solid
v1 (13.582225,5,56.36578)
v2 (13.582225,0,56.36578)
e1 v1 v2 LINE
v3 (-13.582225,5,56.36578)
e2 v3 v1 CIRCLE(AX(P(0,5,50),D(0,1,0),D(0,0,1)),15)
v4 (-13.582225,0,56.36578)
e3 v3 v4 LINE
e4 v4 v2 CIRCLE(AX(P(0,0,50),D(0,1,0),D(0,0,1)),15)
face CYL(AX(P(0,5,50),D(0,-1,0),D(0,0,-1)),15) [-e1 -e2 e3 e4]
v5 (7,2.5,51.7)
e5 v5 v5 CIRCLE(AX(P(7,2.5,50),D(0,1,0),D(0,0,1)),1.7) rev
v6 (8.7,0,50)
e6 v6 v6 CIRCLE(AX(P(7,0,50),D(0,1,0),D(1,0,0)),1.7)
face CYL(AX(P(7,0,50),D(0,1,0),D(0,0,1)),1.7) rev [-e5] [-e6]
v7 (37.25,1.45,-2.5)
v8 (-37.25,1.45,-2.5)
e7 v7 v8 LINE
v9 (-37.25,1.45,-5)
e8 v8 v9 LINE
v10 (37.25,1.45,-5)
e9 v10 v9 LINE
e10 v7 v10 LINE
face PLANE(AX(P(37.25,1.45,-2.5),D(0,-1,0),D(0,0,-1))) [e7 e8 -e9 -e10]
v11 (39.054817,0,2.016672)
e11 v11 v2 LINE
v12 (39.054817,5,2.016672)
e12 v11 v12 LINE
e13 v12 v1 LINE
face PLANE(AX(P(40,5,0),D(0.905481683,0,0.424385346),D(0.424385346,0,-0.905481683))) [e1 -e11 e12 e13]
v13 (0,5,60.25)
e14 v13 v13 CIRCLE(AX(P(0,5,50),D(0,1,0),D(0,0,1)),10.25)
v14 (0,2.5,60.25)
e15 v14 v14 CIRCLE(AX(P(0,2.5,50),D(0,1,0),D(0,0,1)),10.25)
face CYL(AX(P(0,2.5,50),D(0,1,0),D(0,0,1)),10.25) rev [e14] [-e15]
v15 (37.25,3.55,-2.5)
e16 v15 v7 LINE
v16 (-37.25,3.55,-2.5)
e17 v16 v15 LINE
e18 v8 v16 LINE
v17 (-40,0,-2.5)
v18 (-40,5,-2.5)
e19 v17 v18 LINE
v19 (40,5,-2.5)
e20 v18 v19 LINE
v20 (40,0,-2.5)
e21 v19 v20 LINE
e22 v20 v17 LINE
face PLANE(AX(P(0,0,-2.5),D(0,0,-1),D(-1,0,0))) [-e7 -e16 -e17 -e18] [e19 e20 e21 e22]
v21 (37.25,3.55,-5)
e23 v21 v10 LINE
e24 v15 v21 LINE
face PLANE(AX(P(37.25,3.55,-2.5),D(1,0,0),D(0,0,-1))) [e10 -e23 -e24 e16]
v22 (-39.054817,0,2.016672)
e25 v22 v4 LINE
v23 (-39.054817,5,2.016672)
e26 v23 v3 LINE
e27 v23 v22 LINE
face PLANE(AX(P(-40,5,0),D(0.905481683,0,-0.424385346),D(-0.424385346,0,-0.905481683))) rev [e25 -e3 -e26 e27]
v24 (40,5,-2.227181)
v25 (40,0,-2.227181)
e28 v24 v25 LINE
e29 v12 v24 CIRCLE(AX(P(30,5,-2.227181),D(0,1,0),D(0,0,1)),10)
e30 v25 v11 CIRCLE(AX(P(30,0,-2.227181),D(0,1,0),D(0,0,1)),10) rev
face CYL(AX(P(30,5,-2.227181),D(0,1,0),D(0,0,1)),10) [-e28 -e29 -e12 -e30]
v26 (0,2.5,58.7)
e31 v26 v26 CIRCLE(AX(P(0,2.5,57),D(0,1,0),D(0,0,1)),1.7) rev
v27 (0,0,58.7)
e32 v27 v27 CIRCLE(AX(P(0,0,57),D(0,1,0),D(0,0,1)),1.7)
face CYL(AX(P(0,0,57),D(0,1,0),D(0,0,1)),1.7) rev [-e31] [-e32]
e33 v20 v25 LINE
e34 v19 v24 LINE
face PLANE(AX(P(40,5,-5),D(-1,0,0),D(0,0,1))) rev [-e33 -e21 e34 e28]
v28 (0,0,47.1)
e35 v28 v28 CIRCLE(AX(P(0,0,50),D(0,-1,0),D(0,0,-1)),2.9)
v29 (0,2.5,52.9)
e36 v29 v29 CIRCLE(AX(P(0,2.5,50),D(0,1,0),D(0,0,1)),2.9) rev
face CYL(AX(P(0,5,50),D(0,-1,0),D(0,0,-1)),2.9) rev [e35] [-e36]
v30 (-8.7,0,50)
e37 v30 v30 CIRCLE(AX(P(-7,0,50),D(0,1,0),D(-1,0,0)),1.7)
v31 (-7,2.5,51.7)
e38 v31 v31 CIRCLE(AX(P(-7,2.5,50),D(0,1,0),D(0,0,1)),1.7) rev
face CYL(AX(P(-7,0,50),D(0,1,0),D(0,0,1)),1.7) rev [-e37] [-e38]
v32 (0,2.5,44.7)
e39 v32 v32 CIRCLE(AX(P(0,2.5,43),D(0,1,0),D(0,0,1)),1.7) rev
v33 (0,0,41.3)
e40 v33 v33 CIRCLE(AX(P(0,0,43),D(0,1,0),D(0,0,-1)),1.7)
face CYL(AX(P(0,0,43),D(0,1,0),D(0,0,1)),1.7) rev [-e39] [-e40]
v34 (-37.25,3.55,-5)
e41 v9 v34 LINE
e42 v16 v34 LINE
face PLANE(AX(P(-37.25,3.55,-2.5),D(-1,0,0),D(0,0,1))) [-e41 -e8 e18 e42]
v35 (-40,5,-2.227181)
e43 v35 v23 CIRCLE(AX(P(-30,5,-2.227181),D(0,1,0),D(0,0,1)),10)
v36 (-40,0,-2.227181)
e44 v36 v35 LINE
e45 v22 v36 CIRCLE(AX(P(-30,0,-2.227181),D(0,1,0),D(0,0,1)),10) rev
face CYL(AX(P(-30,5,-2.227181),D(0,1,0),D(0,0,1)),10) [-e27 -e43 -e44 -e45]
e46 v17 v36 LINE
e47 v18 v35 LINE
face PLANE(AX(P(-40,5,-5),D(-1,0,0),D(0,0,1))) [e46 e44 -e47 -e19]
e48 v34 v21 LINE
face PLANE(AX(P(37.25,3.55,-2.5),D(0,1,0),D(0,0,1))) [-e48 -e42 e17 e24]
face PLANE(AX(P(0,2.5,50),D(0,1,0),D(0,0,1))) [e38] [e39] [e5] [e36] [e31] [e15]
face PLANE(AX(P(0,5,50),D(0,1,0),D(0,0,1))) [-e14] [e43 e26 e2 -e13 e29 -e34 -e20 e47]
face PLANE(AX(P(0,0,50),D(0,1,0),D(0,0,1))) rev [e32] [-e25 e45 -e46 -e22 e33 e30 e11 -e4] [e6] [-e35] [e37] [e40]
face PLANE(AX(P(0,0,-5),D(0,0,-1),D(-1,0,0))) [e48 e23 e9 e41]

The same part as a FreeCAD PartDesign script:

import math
import FreeCAD as App
import Part
import Sketcher
Q = App.Units.Quantity


def edges_at(feature, points):
    """Names of the edges that pass closest to the given points."""
    edges = feature.Shape.Edges
    near = lambda p: min(range(len(edges)), key=lambda i: edges[i].distToShape(Part.Vertex(*p))[0])
    return sorted({f"Edge{near(p) + 1}" for p in points})


def add_polygon(sketch, points):
    """Adds a closed chain of lines whose ends are joined by coincident constraints."""
    first, n = sketch.GeometryCount, len(points)
    for a, b in zip(points, points[1:] + points[:1]):
        sketch.addGeometry(Part.LineSegment(App.Vector(*a, 0), App.Vector(*b, 0)), False)
    for i in range(n):
        sketch.addConstraint(Sketcher.Constraint("Coincident", first + i, 2, first + (i + 1) % n, 1))

doc = App.newDocument("Part")
body = doc.addObject("PartDesign::Body", "Body")

sketch1 = body.newObject("Sketcher::SketchObject", "Sketch")
sketch1.AttachmentSupport = (doc.getObject("XZ_Plane"), [""])
sketch1.MapMode = "FlatFace"
sketch1.addGeometry([
    Part.LineSegment(App.Vector(40, 0, 0), App.Vector(-40, 0, 0)),
    Part.LineSegment(App.Vector(-40, 0, 0), App.Vector(-13.582225, 56.36578, 0)),
    Part.ArcOfCircle(Part.Circle(App.Vector(0, 50, 0), App.Vector(0, 0, 1), 15), math.radians(25.111764), math.radians(154.888236)),
    Part.LineSegment(App.Vector(13.582225, 56.36578, 0), App.Vector(40, 0, 0)),
], False)
sketch1.addConstraint([
    Sketcher.Constraint("Coincident", 0, 2, 1, 1),
    Sketcher.Constraint("Tangent", 1, 2, 2, 2),
    Sketcher.Constraint("Tangent", 2, 1, 3, 1),
    Sketcher.Constraint("Coincident", 3, 2, 0, 1),
    Sketcher.Constraint("Horizontal", 0),
    Sketcher.Constraint("Symmetric", 0, 2, 3, 2, -1, 1),
    Sketcher.Constraint("PointOnObject", 2, 3, -2),
    Sketcher.Constraint("Radius", 2, Q("15 mm")),
    Sketcher.Constraint("DistanceX", 0, 2, 0, 1, Q("80 mm")),
    Sketcher.Constraint("DistanceY", -1, 1, 2, 3, Q("50 mm")),
])
pad1 = body.newObject("PartDesign::Pad", "Pad")
pad1.Profile = sketch1
pad1.Length = 5
pad1.Reversed = True

sketch2 = body.newObject("Sketcher::SketchObject", "Sketch001")
sketch2.AttachmentSupport = (doc.getObject("XY_Plane"), [""])
sketch2.MapMode = "FlatFace"
add_polygon(sketch2, [(40, 5), (40, 0), (-40, 0), (-40, 5)])
sketch2.addConstraint([
    Sketcher.Constraint("Vertical", 0),
    Sketcher.Constraint("Horizontal", 1),
    Sketcher.Constraint("Vertical", 2),
    Sketcher.Constraint("Horizontal", 3),
    Sketcher.Constraint("Symmetric", 0, 2, 1, 2, -1, 1),
    Sketcher.Constraint("DistanceX", 1, 2, 1, 1, Q("80 mm")),
    Sketcher.Constraint("DistanceY", 0, 2, 0, 1, Q("5 mm")),
])
pad2 = body.newObject("PartDesign::Pad", "Pad001")
pad2.Profile = sketch2
pad2.Length = 5
pad2.Reversed = True

sketch3 = body.newObject("Sketcher::SketchObject", "Sketch002")
sketch3.AttachmentSupport = (doc.getObject("XY_Plane"), [""])
sketch3.MapMode = "FlatFace"
sketch3.AttachmentOffset = App.Placement(App.Vector(0, 0, -5), App.Rotation())
add_polygon(sketch3, [(40, 5), (40, 0), (-40, 0), (-40, 5)])
add_polygon(sketch3, [(-37.25, 1.45), (37.25, 1.45), (37.25, 3.55), (-37.25, 3.55)])
sketch3.addConstraint([
    Sketcher.Constraint("Vertical", 0),
    Sketcher.Constraint("Horizontal", 1),
    Sketcher.Constraint("Vertical", 2),
    Sketcher.Constraint("Horizontal", 3),
    Sketcher.Constraint("Horizontal", 4),
    Sketcher.Constraint("Vertical", 5),
    Sketcher.Constraint("Horizontal", 6),
    Sketcher.Constraint("Vertical", 7),
    Sketcher.Constraint("Symmetric", 0, 2, 1, 2, -1, 1),
    Sketcher.Constraint("DistanceX", 1, 2, 1, 1, Q("80 mm")),
    Sketcher.Constraint("DistanceY", 0, 2, 0, 1, Q("5 mm")),
    Sketcher.Constraint("DistanceX", 4, 1, 4, 2, Q("74.5 mm")),
    Sketcher.Constraint("DistanceY", 5, 1, 5, 2, Q("2.1 mm")),
    Sketcher.Constraint("DistanceX", -1, 1, 4, 2, Q("37.25 mm")),
    Sketcher.Constraint("DistanceY", -1, 1, 4, 2, Q("1.45 mm")),
])
pocket1 = body.newObject("PartDesign::Pocket", "Pocket")
pocket1.Profile = sketch3
pocket1.Length = 2.5
pocket1.Reversed = True
doc.recompute()

fillet = body.newObject("PartDesign::Fillet", "Fillet")
fillet.Base = (pocket1, edges_at(pocket1, [(-40, 2.5, 0), (40, 2.5, 0)]))
fillet.Radius = 10

sketch4 = body.newObject("Sketcher::SketchObject", "Sketch003")
sketch4.AttachmentSupport = (doc.getObject("XZ_Plane"), [""])
sketch4.MapMode = "FlatFace"
sketch4.addGeometry(Part.Circle(App.Vector(0, 50, 0), App.Vector(0, 0, 1), 2.9), False)
sketch4.addConstraint([
    Sketcher.Constraint("PointOnObject", 0, 3, -2),
    Sketcher.Constraint("Diameter", 0, Q("5.8 mm")),
    Sketcher.Constraint("DistanceY", -1, 1, 0, 3, Q("50 mm")),
])
pocket2 = body.newObject("PartDesign::Pocket", "Pocket001")
pocket2.Profile = sketch4
pocket2.Length = 5

sketch5 = body.newObject("Sketcher::SketchObject", "Sketch004")
sketch5.AttachmentSupport = (doc.getObject("XZ_Plane"), [""])
sketch5.MapMode = "FlatFace"
sketch5.AttachmentOffset = App.Placement(App.Vector(0, 0, -5), App.Rotation())
sketch5.addGeometry(Part.Circle(App.Vector(0, 57, 0), App.Vector(0, 0, 1), 1.7), False)
sketch5.addConstraint([
    Sketcher.Constraint("PointOnObject", 0, 3, -2),
    Sketcher.Constraint("Diameter", 0, Q("3.4 mm")),
    Sketcher.Constraint("DistanceY", -1, 1, 0, 3, Q("57 mm")),
])
pocket3 = body.newObject("PartDesign::Pocket", "Pocket002")
pocket3.Profile = sketch5
pocket3.Length = 5
pocket3.Reversed = True
doc.recompute()

datumline = body.newObject("PartDesign::Line", "DatumLine")
datumline.Placement = App.Placement(App.Vector(0, 0, 50), App.Rotation(App.Vector(0, 0, 1), App.Vector(0, 1, 0)))
polarpattern = body.newObject("PartDesign::PolarPattern", "PolarPattern")
polarpattern.Originals = [pocket3]
polarpattern.Axis = (datumline, [""])
polarpattern.Angle = 360
polarpattern.Occurrences = 4
body.Tip = polarpattern

sketch6 = body.newObject("Sketcher::SketchObject", "Sketch005")
sketch6.AttachmentSupport = (doc.getObject("XZ_Plane"), [""])
sketch6.MapMode = "FlatFace"
sketch6.AttachmentOffset = App.Placement(App.Vector(0, 0, -5), App.Rotation())
sketch6.addGeometry(Part.Circle(App.Vector(0, 50, 0), App.Vector(0, 0, 1), 10.25), False)
sketch6.addConstraint([
    Sketcher.Constraint("PointOnObject", 0, 3, -2),
    Sketcher.Constraint("Diameter", 0, Q("20.5 mm")),
    Sketcher.Constraint("DistanceY", -1, 1, 0, 3, Q("50 mm")),
])
pocket4 = body.newObject("PartDesign::Pocket", "Pocket003")
pocket4.Profile = sketch6
pocket4.Length = 2.5
pocket4.Reversed = True

doc.recompute()
